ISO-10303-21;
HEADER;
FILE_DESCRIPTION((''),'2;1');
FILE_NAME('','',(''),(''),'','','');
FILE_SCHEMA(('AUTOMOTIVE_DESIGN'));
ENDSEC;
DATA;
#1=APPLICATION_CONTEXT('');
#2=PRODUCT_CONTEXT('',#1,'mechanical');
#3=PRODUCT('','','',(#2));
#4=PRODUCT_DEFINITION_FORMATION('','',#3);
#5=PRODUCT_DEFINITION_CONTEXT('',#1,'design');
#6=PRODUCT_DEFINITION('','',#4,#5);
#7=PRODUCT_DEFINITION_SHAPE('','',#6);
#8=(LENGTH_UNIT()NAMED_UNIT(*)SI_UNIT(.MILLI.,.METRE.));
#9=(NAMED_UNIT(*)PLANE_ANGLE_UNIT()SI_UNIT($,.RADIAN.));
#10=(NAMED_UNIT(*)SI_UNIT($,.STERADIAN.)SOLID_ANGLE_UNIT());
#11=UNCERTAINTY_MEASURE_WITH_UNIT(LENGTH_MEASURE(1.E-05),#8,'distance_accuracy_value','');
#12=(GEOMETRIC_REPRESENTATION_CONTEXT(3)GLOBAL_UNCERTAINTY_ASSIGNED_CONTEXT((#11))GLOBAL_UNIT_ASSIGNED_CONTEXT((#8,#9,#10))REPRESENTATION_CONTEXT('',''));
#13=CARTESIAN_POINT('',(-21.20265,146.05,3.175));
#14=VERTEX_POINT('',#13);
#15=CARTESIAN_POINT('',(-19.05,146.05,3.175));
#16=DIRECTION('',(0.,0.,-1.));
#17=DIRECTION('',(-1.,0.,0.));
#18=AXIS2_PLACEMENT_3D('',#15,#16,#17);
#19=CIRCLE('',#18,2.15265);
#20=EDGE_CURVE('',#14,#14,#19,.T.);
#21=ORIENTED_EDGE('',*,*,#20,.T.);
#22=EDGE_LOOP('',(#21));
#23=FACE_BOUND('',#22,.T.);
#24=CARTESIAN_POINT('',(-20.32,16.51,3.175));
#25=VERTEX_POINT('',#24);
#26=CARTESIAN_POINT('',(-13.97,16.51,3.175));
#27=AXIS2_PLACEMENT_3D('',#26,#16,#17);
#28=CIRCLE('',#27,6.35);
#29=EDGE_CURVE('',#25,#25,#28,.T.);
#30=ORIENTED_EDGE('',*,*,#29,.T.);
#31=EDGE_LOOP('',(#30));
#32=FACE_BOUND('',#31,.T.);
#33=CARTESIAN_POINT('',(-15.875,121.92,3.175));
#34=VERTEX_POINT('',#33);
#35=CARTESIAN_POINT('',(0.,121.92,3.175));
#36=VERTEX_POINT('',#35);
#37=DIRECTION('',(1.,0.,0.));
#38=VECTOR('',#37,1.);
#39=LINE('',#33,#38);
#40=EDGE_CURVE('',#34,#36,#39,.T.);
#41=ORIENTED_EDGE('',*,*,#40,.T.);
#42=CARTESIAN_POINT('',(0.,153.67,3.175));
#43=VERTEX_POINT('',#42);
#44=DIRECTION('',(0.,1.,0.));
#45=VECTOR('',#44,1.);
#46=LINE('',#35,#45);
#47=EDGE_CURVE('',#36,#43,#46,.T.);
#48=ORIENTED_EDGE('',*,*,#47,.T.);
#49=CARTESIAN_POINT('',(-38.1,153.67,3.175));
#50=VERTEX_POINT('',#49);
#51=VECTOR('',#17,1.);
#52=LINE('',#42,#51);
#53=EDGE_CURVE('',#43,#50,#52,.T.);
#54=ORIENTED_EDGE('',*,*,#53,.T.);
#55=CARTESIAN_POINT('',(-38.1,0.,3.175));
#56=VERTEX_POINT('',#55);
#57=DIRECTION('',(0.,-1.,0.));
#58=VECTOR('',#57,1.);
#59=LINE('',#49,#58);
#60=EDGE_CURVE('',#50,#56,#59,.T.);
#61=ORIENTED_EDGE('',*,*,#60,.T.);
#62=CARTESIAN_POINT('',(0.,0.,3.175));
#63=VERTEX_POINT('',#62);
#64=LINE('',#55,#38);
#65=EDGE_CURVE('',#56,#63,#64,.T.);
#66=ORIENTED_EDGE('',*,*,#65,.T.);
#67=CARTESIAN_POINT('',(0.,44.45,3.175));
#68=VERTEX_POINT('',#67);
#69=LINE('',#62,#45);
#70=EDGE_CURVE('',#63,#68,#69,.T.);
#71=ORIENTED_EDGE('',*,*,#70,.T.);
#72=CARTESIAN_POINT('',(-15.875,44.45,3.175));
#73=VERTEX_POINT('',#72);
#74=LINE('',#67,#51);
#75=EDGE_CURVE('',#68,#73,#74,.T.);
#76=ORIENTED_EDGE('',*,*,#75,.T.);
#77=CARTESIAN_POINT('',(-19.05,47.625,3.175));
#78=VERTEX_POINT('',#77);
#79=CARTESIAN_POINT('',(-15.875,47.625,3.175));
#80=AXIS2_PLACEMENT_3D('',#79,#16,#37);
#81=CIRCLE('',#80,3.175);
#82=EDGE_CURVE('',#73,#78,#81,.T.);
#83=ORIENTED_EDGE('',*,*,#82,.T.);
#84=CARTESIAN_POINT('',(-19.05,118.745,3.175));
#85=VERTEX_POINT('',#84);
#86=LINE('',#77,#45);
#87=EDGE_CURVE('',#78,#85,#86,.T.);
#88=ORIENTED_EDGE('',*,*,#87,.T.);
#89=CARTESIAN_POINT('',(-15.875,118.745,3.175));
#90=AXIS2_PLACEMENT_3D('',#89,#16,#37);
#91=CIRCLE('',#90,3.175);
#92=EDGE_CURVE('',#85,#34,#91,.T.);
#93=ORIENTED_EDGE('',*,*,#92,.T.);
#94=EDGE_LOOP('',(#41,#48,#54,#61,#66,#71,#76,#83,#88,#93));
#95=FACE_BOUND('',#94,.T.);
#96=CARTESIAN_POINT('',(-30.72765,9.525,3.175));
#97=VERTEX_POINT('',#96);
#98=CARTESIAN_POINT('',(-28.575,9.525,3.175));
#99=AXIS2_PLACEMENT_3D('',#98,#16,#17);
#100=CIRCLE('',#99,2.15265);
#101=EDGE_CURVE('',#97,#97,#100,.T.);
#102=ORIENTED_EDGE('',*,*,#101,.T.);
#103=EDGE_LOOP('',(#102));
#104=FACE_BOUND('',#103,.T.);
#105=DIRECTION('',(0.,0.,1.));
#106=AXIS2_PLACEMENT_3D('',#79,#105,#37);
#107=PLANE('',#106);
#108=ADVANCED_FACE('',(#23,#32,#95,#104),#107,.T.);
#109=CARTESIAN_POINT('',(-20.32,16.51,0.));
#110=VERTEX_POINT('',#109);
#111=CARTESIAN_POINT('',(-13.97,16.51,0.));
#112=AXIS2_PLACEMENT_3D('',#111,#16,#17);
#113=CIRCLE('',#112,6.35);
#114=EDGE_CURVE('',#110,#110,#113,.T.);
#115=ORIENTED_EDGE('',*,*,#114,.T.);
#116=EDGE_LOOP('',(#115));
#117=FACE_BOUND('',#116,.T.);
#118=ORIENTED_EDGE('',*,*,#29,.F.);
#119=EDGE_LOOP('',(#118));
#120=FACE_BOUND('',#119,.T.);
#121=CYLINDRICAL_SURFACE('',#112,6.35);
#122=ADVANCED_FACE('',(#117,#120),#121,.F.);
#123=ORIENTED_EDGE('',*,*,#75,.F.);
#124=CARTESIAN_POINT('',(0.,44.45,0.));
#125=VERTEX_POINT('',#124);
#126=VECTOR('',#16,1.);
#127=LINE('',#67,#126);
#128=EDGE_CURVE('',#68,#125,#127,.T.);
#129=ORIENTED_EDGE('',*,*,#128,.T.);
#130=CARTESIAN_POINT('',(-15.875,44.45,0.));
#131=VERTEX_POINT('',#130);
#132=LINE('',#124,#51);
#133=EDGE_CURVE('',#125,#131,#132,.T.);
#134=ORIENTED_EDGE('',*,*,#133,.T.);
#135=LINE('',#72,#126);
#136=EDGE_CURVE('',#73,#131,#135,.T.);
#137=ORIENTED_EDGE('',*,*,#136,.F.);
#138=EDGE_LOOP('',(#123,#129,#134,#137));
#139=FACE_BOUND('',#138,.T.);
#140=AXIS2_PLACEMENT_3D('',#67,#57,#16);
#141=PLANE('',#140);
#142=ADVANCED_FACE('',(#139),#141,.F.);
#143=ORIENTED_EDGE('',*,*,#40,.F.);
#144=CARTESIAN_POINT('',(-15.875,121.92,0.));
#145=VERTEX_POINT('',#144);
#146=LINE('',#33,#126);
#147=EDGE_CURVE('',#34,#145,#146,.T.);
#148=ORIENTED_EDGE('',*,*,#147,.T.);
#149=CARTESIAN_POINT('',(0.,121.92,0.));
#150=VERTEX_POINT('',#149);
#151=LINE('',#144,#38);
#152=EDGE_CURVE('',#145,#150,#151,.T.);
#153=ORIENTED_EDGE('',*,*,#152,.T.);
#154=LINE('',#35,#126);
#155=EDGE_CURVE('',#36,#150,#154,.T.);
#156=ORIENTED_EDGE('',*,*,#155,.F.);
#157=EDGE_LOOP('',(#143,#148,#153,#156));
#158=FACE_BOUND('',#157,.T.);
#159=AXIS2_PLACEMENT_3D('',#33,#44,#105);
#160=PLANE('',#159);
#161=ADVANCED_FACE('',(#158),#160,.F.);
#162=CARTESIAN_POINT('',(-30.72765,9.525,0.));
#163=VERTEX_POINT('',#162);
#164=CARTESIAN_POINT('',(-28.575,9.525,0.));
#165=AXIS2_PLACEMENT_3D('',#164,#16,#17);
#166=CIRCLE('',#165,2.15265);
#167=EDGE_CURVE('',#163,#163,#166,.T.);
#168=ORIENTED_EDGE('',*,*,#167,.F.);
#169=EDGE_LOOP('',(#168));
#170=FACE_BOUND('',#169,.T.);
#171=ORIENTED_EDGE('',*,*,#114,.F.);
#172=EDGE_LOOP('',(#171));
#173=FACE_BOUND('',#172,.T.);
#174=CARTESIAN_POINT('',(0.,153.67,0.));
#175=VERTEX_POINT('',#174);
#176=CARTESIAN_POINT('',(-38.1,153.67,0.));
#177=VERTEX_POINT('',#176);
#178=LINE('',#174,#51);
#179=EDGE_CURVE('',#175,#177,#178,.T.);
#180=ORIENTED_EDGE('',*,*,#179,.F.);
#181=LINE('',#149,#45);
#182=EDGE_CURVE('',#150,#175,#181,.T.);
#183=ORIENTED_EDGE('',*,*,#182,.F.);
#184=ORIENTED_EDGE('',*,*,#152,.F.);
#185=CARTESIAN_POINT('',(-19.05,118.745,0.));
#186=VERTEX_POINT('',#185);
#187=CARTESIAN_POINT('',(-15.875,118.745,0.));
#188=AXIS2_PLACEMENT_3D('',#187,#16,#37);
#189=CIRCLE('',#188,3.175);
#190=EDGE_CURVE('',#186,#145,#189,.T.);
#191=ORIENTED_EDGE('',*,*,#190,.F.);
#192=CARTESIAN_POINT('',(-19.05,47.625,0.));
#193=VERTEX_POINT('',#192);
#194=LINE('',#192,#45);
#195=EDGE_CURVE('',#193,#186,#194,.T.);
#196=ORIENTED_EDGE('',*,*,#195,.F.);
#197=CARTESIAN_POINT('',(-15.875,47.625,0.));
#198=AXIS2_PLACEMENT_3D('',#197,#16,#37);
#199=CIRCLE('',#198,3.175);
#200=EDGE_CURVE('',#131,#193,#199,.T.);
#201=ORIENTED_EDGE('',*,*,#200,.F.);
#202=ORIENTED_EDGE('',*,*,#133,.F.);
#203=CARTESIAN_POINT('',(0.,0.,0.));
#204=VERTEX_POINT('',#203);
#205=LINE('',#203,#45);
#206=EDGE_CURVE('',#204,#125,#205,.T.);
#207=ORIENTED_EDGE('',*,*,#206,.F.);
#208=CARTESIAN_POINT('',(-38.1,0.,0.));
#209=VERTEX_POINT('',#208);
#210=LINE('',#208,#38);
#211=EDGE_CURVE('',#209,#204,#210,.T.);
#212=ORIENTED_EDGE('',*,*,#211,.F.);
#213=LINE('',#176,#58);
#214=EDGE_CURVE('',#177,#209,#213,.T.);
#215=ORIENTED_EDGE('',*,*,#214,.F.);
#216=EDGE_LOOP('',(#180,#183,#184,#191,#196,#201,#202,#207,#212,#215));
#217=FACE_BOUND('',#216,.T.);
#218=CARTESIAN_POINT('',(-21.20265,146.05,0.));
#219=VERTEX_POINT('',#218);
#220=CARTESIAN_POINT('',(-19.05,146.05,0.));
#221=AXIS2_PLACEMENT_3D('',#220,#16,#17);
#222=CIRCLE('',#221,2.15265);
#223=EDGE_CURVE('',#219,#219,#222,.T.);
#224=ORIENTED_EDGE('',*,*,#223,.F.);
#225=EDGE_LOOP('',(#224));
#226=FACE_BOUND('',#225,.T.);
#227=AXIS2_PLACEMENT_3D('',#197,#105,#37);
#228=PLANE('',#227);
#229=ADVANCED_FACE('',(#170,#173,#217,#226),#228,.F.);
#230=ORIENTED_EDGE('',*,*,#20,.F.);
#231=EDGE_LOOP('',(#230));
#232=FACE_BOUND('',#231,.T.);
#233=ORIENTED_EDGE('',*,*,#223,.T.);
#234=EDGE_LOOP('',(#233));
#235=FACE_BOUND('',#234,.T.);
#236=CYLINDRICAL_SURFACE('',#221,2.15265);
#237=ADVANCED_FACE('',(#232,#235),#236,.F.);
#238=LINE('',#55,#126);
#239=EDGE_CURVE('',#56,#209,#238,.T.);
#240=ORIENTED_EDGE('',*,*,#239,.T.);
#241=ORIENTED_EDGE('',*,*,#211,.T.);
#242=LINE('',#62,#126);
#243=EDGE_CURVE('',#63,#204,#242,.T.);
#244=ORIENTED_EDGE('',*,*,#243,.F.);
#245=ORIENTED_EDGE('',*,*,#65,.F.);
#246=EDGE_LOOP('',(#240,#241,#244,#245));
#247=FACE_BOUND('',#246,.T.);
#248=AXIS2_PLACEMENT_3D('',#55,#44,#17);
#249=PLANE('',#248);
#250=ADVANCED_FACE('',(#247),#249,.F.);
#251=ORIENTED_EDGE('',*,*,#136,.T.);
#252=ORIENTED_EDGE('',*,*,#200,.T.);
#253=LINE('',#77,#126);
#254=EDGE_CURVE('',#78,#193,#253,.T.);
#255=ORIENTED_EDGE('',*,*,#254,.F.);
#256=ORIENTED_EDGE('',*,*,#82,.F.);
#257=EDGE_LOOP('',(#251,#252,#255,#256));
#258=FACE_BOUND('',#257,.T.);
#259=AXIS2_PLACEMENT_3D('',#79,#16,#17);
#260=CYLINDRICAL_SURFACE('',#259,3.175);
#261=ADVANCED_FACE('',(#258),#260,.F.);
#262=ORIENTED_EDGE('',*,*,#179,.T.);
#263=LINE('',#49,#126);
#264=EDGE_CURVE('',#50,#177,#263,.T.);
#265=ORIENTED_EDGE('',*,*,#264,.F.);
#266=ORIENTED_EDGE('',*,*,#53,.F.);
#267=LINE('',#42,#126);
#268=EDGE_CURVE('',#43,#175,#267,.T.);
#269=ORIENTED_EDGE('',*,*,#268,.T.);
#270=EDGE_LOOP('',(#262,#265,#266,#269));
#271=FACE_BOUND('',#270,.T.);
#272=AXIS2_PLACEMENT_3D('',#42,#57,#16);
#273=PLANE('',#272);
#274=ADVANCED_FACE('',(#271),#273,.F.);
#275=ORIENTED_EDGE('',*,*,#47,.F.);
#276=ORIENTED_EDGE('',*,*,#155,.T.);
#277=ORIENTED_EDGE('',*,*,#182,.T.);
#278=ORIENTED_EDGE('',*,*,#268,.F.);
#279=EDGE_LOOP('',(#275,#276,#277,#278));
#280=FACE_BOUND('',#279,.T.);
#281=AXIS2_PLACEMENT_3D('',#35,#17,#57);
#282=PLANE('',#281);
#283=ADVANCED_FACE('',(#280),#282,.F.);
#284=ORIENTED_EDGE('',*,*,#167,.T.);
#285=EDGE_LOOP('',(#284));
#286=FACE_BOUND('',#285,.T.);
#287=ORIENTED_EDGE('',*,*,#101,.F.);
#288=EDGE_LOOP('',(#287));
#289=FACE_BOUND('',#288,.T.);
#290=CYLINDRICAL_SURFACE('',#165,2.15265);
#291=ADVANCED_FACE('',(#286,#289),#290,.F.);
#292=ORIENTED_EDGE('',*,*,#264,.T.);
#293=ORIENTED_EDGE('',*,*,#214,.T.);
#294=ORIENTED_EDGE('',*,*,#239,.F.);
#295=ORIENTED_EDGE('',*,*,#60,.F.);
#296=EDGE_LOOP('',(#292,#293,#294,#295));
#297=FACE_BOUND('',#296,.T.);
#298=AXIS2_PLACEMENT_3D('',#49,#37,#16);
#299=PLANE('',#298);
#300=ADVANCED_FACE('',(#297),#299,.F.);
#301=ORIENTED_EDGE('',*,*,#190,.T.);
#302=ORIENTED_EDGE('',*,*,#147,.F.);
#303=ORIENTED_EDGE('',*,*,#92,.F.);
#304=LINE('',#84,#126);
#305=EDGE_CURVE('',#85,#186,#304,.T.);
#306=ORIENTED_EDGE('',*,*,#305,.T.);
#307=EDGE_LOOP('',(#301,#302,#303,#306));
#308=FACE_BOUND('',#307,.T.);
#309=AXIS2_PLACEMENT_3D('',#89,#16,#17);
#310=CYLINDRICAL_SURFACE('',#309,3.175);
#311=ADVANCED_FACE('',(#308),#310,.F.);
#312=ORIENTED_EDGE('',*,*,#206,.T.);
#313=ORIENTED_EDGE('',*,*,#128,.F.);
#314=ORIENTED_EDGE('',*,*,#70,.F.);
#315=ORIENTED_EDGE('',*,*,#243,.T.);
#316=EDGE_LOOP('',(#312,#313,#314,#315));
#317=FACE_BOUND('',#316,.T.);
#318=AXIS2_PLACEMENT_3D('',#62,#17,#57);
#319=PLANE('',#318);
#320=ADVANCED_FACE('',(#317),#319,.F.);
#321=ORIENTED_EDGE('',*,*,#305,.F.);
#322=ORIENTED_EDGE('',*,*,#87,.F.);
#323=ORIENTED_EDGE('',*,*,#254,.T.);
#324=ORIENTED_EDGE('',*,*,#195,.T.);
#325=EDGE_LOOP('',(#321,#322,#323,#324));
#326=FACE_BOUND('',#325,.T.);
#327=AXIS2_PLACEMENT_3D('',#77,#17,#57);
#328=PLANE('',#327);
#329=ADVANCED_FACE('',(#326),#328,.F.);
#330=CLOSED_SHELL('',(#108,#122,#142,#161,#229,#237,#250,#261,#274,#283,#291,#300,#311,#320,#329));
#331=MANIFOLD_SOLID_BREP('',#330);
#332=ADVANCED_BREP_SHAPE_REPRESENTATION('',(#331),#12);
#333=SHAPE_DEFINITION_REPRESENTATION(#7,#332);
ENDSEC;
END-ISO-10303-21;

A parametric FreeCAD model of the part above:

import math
import FreeCAD as App
import Part
import Sketcher
Q = App.Units.Quantity

doc = App.newDocument("Part")
body = doc.addObject("PartDesign::Body", "Body")

# Sketch on XY plane
sketch1 = doc.addObject("Sketcher::SketchObject", "Sketch")
body.addObject(sketch1)
sketch1.AttachmentSupport = (doc.XY_Plane, [""])
sketch1.MapMode = "FlatFace"
sketch1.addGeometry([
    Part.LineSegment(App.Vector(0, 0, 0), App.Vector(0, 44.5, 0)),  # 0
    Part.LineSegment(App.Vector(0, 44.5, 0), App.Vector(-15.9, 44.5, 0)),  # 1
    Part.ArcOfCircle(Part.Circle(App.Vector(-15.9, 47.6, 0), App.Vector(0, 0, 1), 3.2), math.radians(-180), math.radians(-90)),  # 2
    Part.LineSegment(App.Vector(-19.1, 47.6, 0), App.Vector(-19.1, 118.7, 0)),  # 3
    Part.ArcOfCircle(Part.Circle(App.Vector(-15.9, 118.7, 0), App.Vector(0, 0, 1), 3.2), math.radians(90), math.radians(180)),  # 4
    Part.LineSegment(App.Vector(-15.9, 121.9, 0), App.Vector(0, 121.9, 0)),  # 5
    Part.LineSegment(App.Vector(0, 121.9, 0), App.Vector(0, 153.7, 0)),  # 6
    Part.LineSegment(App.Vector(0, 153.7, 0), App.Vector(-38.1, 153.7, 0)),  # 7
    Part.LineSegment(App.Vector(-38.1, 153.7, 0), App.Vector(-38.1, 0, 0)),  # 8
    Part.LineSegment(App.Vector(-38.1, 0, 0), App.Vector(0, 0, 0)),  # 9
], False)
sketch1.addConstraint([
    Sketcher.Constraint("Coincident", 0, 2, 1, 1),
    Sketcher.Constraint("Tangent", 1, 2, 2, 2),
    Sketcher.Constraint("Tangent", 2, 1, 3, 1),
    Sketcher.Constraint("Tangent", 3, 2, 4, 2),
    Sketcher.Constraint("Tangent", 4, 1, 5, 1),
    Sketcher.Constraint("Coincident", 5, 2, 6, 1),
    Sketcher.Constraint("Coincident", 6, 2, 7, 1),
    Sketcher.Constraint("Coincident", 7, 2, 8, 1),
    Sketcher.Constraint("Coincident", 8, 2, 9, 1),
    Sketcher.Constraint("Coincident", 9, 2, 0, 1),
    Sketcher.Constraint("Vertical", 0),
    Sketcher.Constraint("Horizontal", 1),
    Sketcher.Constraint("Vertical", 3),
    Sketcher.Constraint("Horizontal", 5),
    Sketcher.Constraint("Vertical", 6),
    Sketcher.Constraint("Horizontal", 7),
    Sketcher.Constraint("Vertical", 8),
    Sketcher.Constraint("Horizontal", 9),
    Sketcher.Constraint("Coincident", 9, 2, -1, 1),
    Sketcher.Constraint("Equal", 2, 4),
    Sketcher.Constraint("PointOnObject", 5, 2, -2),
    Sketcher.Constraint("DistanceX", 7, 2, 7, 1, Q("1.5 in")),
    Sketcher.Constraint("DistanceY", 3, 1, 3, 2, Q("2.8 in")),
    Sketcher.Constraint("Radius", 2, Q("0.125 in")),
    Sketcher.Constraint("DistanceY", 0, 1, 0, 2, Q("1.75 in")),
    Sketcher.Constraint("DistanceY", 6, 1, 6, 2, Q("1.25 in")),
    Sketcher.Constraint("DistanceX", 1, 2, 1, 1, Q("0.625 in")),
])
pad1 = doc.addObject("PartDesign::Pad", "Pad")
body.addObject(pad1)
pad1.Profile = sketch1
pad1.Length = Q("0.125 in")

# Sketch on XY plane
sketch2 = doc.addObject("Sketcher::SketchObject", "Sketch001")
body.addObject(sketch2)
sketch2.AttachmentSupport = (doc.XY_Plane, [""])
sketch2.MapMode = "FlatFace"
sketch2.addGeometry([
    Part.Circle(App.Vector(-28.6, 9.5, 0), App.Vector(0, 0, 1), 2.2),
    Part.Circle(App.Vector(-19.1, 146.1, 0), App.Vector(0, 0, 1), 2.2),
], False)
sketch2.addConstraint([
    Sketcher.Constraint("Equal", 0, 1),
    Sketcher.Constraint("Diameter", 0, Q("0.1695 in")),
    Sketcher.Constraint("DistanceX", 1, 3, -1, 1, Q("0.75 in")),
    Sketcher.Constraint("DistanceY", -1, 1, 1, 3, Q("5.75 in")),
    Sketcher.Constraint("DistanceX", 0, 3, -1, 1, Q("1.125 in")),
    Sketcher.Constraint("DistanceY", -1, 1, 0, 3, Q("0.375 in")),
])
doc.recompute()
hole = doc.addObject("PartDesign::Hole", "Hole")
body.addObject(hole)
hole.Profile = sketch2
hole.ThreadType = "None"
hole.Diameter = Q("0.1695 in")
hole.DepthType = "ThroughAll"
hole.Reversed = True

# Sketch on XY plane
sketch3 = doc.addObject("Sketcher::SketchObject", "Sketch002")
body.addObject(sketch3)
sketch3.AttachmentSupport = (doc.XY_Plane, [""])
sketch3.MapMode = "FlatFace"
sketch3.addGeometry(Part.Circle(App.Vector(-14, 17, 0), App.Vector(0, 0, 1), 6), False)
sketch3.addConstraint([
    Sketcher.Constraint("Diameter", 0, Q("0.5 in")),
    Sketcher.Constraint("DistanceX", 0, 3, -1, 1, Q("0.55 in")),
    Sketcher.Constraint("DistanceY", -1, 1, 0, 3, Q("0.65 in")),
])
doc.recompute()
hole2 = doc.addObject("PartDesign::Hole", "Hole001")
body.addObject(hole2)
hole2.Profile = sketch3
hole2.ThreadType = "None"
hole2.Diameter = Q("0.5 in")
hole2.DepthType = "ThroughAll"
hole2.Reversed = True

doc.recompute()
